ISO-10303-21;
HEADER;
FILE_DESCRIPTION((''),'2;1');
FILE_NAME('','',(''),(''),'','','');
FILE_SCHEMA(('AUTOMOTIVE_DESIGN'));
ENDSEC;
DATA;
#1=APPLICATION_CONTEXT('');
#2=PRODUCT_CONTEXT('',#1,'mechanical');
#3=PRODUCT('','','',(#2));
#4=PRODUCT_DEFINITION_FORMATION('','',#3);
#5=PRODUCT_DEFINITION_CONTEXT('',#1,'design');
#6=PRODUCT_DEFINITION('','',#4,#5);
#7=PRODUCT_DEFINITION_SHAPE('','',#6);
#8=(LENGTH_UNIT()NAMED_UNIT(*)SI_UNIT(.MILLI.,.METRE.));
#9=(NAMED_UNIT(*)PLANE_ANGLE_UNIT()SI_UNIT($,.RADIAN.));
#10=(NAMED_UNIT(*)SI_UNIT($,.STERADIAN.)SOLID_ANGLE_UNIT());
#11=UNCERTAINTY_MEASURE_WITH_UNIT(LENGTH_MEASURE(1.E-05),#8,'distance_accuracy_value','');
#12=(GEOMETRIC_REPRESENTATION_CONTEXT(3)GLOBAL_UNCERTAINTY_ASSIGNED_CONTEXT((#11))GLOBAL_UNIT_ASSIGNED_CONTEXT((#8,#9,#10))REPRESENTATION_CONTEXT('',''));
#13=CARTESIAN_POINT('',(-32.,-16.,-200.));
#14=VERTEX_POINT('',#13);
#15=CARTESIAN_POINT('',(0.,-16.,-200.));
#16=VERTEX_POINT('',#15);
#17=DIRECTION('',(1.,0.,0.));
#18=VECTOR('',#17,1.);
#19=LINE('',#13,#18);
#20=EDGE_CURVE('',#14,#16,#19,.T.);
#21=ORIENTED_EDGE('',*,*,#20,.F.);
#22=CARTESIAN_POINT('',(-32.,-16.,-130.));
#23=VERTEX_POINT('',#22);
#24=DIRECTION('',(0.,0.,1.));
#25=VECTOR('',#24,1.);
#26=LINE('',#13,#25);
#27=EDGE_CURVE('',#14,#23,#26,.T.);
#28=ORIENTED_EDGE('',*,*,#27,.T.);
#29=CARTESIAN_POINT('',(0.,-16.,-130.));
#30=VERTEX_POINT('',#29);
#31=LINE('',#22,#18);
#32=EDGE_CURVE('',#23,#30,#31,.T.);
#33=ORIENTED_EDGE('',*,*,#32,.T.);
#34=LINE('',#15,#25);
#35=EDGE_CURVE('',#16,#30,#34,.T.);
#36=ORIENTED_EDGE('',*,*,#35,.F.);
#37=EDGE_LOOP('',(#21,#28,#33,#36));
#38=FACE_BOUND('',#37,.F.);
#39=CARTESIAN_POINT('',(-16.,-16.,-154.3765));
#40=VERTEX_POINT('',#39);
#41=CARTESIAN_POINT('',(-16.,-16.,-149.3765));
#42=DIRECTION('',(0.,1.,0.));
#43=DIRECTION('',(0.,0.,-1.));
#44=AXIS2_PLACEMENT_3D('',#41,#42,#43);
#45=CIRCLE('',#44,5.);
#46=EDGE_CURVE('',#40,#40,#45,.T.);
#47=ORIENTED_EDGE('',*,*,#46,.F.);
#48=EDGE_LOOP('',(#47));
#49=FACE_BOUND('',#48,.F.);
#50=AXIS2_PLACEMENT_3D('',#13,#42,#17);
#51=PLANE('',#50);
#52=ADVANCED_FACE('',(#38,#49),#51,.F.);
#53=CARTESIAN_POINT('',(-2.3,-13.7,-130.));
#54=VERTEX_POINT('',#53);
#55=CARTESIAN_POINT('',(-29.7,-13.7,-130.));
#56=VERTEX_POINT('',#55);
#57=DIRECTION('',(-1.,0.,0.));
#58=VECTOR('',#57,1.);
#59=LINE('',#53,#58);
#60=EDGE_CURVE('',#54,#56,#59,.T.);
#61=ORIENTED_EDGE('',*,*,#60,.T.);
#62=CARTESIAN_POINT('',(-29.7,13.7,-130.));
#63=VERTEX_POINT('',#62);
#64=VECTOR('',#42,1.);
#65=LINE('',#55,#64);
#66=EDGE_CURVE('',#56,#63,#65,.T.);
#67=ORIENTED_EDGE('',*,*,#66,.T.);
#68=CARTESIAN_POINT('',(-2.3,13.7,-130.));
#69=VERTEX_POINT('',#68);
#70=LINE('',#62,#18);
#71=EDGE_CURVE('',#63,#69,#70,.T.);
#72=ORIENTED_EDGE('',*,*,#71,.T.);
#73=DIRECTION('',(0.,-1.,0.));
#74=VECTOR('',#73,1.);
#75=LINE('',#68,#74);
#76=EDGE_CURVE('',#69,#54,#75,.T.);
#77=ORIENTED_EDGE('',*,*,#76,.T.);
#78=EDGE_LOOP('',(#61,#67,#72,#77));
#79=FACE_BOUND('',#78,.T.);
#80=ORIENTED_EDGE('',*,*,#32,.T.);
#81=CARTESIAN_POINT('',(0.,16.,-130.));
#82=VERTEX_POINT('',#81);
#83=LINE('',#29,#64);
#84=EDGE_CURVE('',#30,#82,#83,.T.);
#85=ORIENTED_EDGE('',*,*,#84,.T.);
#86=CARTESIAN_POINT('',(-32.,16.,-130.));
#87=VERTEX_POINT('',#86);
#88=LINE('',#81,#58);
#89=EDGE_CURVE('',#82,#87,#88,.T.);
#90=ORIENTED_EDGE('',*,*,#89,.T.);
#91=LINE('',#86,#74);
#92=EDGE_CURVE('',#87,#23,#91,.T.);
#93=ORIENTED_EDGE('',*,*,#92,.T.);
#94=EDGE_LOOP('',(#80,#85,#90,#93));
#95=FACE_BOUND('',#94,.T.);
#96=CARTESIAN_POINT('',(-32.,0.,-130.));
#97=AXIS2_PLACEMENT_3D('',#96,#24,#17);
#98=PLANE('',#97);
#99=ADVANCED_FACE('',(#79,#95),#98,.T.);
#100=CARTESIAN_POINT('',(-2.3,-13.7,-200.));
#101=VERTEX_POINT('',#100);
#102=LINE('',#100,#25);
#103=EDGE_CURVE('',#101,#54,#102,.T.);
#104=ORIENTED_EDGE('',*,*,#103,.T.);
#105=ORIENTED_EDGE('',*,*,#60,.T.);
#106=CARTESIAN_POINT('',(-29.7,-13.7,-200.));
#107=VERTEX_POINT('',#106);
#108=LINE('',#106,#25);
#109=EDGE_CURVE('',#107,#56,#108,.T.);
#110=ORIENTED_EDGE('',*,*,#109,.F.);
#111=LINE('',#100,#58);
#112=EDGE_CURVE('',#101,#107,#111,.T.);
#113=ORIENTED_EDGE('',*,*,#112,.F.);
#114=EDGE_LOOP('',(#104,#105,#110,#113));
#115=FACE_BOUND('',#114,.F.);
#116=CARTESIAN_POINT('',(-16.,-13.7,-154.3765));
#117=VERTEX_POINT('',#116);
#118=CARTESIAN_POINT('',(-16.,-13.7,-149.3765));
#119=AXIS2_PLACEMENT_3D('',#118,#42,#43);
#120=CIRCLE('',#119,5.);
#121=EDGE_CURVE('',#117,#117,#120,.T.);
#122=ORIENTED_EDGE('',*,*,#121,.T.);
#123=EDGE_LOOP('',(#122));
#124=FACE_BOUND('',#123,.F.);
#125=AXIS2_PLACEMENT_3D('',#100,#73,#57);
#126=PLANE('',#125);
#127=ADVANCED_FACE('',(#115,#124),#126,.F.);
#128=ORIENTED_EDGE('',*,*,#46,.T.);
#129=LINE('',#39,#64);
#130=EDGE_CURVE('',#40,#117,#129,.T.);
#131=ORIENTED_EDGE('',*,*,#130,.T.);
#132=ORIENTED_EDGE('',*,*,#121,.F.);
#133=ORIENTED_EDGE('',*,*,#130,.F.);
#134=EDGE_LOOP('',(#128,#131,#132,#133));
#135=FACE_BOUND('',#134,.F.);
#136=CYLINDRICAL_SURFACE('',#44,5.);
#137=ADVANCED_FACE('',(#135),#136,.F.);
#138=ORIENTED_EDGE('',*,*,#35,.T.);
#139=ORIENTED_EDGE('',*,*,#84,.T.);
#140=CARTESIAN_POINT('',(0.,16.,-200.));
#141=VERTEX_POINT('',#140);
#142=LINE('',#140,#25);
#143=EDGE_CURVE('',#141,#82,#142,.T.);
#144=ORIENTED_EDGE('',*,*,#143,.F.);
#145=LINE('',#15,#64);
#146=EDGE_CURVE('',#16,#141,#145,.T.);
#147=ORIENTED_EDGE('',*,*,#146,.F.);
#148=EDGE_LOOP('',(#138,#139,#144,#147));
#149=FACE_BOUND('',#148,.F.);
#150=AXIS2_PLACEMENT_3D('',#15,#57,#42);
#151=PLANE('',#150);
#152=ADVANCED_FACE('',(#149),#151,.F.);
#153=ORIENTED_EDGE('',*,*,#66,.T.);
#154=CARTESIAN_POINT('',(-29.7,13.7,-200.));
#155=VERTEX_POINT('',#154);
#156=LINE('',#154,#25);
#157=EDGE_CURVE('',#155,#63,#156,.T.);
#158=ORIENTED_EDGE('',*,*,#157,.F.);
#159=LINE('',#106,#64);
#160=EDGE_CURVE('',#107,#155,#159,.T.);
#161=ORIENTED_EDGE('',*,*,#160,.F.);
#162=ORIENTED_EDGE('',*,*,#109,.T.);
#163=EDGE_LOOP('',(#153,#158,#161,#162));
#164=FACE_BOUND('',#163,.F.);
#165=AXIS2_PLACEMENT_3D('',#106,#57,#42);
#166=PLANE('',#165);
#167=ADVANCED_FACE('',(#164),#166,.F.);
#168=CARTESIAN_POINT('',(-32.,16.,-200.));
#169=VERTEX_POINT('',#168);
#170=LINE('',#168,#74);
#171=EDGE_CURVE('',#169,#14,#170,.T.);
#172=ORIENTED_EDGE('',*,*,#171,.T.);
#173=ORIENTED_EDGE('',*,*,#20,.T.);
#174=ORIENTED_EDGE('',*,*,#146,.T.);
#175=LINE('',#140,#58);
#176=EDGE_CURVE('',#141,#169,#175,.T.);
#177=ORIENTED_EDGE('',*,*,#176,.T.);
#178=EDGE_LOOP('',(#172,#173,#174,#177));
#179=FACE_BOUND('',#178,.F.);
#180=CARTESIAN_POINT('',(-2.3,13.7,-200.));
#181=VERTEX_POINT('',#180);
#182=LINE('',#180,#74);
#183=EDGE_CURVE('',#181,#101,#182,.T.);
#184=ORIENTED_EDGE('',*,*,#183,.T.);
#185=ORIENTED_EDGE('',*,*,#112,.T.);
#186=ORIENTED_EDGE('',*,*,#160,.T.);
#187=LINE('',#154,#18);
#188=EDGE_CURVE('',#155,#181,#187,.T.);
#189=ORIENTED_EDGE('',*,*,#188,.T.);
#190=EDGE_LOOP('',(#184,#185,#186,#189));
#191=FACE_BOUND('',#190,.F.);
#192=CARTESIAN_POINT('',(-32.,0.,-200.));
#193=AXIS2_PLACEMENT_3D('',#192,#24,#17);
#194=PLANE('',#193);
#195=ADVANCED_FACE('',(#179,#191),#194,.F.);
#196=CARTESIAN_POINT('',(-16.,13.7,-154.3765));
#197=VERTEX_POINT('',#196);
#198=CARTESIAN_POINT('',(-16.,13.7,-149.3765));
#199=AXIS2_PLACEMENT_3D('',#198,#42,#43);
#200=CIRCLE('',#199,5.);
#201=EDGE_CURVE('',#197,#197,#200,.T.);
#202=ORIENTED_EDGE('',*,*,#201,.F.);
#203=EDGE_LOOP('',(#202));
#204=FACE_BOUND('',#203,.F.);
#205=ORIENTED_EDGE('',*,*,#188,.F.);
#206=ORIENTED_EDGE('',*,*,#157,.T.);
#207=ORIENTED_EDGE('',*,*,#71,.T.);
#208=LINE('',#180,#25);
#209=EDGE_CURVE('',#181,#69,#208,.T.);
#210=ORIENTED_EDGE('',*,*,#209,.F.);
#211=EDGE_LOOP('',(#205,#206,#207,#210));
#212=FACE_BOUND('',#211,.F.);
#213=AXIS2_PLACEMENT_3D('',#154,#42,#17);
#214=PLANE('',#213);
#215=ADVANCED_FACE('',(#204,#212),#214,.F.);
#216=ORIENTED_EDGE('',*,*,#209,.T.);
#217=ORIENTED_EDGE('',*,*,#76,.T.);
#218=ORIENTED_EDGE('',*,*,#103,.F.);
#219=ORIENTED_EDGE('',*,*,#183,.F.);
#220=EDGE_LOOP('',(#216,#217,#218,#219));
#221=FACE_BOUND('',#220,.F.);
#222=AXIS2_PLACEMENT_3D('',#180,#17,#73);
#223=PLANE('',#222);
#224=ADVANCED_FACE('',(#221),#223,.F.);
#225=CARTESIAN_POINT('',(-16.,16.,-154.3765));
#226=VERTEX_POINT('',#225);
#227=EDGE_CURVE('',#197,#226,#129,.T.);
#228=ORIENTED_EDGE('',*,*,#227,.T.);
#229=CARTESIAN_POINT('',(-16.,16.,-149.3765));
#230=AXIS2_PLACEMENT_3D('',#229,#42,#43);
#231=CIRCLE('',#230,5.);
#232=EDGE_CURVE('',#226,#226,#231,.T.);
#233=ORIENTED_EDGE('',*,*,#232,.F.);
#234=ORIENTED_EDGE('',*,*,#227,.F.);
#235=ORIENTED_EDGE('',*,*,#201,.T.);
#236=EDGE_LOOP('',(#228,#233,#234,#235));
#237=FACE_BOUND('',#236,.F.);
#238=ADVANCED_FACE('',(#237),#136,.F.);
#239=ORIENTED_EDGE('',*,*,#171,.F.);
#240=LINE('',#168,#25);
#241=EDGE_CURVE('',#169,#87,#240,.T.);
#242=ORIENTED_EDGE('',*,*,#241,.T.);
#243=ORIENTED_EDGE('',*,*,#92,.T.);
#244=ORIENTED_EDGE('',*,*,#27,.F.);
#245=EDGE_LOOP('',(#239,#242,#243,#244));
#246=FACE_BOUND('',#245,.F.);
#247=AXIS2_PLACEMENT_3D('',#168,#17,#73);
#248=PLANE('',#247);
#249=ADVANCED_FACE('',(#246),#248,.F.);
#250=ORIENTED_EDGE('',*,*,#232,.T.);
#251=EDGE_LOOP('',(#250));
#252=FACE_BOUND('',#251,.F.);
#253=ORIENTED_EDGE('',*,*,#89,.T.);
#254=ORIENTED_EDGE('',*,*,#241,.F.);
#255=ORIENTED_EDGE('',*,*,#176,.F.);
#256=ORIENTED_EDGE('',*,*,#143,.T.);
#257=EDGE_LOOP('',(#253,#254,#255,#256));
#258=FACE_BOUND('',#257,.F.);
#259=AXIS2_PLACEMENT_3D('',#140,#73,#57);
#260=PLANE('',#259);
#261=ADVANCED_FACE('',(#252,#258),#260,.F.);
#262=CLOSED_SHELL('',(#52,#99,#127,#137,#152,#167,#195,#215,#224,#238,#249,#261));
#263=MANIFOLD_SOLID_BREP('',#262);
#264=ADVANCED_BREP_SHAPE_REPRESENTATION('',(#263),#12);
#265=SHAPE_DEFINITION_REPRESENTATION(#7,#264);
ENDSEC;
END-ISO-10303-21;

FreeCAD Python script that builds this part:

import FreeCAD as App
import Part
import Sketcher

V = App.Vector


def add_polygon(sketch, points):
    """Adds a closed chain of lines whose ends are joined by coincident constraints."""
    first, n = sketch.GeometryCount, len(points)
    for a, b in zip(points, points[1:] + points[:1]):
        sketch.addGeometry(Part.LineSegment(App.Vector(*a, 0), App.Vector(*b, 0)), False)
    for i in range(n):
        sketch.addConstraint(Sketcher.Constraint("Coincident", first + i, 2, first + (i + 1) % n, 1))

doc = App.newDocument("Part")
params = doc.addObject("Spreadsheet::Sheet", "Params")
for row, (alias, value) in enumerate([
    ("sketch1_width", "32 mm"),
    ("pad1_length", "70 mm"),
    ("sketch2_diameter", "10 mm"),
    ("hole_diameter", "10 mm"),
], start=1):
    params.set(f"A{row}", alias)
    params.set(f"B{row}", "=" + value)
    params.setAlias(f"B{row}", alias)

body = doc.addObject("PartDesign::Body", "Body")

sketch1 = body.newObject("Sketcher::SketchObject", "Sketch")
sketch1.AttachmentSupport = (doc.getObject("XY_Plane"), [""])
sketch1.MapMode = "FlatFace"
sketch1.AttachmentOffset = App.Placement(V(0, 0, -200), App.Rotation())
add_polygon(sketch1, [(-32, 16), (-32, -16), (0, -16), (0, 16)])
add_polygon(sketch1, [(-2, 14), (-2, -14), (-30, -14), (-30, 14)])
sketch1.addConstraint([
    Sketcher.Constraint("Vertical", 0),
    Sketcher.Constraint("Horizontal", 1),
    Sketcher.Constraint("Vertical", 2),
    Sketcher.Constraint("Horizontal", 3),
    Sketcher.Constraint("Vertical", 4),
    Sketcher.Constraint("Horizontal", 5),
    Sketcher.Constraint("Vertical", 6),
    Sketcher.Constraint("Horizontal", 7),
    Sketcher.Constraint("Symmetric", 1, 2, 2, 2, -1, 1),
    Sketcher.Constraint("Equal", 3, 0),
    Sketcher.Constraint("Equal", 7, 4),
    Sketcher.Constraint("DistanceX", 1, 1, 1, 2, 32.0),
    Sketcher.Constraint("DistanceX", 4, 2, -1, 1, 2.3),
    Sketcher.Constraint("DistanceY", 1, 2, 4, 2, 2.3),
    Sketcher.Constraint("DistanceX", 0, 2, 5, 2, 2.3),
])
sketch1.setExpression("Constraints[19]", "Params.sketch1_width")
pad1 = body.newObject("PartDesign::Pad", "Pad")
pad1.Profile = sketch1
pad1.setExpression("Length", "Params.pad1_length")

sketch2 = body.newObject("Sketcher::SketchObject", "Sketch001")
sketch2.AttachmentSupport = (doc.getObject("XZ_Plane"), [""])
sketch2.MapMode = "FlatFace"
sketch2.AttachmentOffset = App.Placement(V(0, 0, 16), App.Rotation())
sketch2.addGeometry(Part.Circle(V(-16, -149, 0), V(0, 0, 1), 5), False)
sketch2.addConstraint([
    Sketcher.Constraint("Diameter", 0, 10.0),
    Sketcher.Constraint("DistanceX", 0, 3, -1, 1, 16.0),
    Sketcher.Constraint("DistanceY", 0, 3, -1, 1, 149.3765),
])
sketch2.setExpression("Constraints[0]", "Params.sketch2_diameter")
doc.recompute()
hole = body.newObject("PartDesign::Hole", "Hole")
hole.Profile = sketch2
hole.ThreadType = "None"
hole.setExpression("Diameter", "Params.hole_diameter")
hole.DepthType = "ThroughAll"

doc.recompute()
